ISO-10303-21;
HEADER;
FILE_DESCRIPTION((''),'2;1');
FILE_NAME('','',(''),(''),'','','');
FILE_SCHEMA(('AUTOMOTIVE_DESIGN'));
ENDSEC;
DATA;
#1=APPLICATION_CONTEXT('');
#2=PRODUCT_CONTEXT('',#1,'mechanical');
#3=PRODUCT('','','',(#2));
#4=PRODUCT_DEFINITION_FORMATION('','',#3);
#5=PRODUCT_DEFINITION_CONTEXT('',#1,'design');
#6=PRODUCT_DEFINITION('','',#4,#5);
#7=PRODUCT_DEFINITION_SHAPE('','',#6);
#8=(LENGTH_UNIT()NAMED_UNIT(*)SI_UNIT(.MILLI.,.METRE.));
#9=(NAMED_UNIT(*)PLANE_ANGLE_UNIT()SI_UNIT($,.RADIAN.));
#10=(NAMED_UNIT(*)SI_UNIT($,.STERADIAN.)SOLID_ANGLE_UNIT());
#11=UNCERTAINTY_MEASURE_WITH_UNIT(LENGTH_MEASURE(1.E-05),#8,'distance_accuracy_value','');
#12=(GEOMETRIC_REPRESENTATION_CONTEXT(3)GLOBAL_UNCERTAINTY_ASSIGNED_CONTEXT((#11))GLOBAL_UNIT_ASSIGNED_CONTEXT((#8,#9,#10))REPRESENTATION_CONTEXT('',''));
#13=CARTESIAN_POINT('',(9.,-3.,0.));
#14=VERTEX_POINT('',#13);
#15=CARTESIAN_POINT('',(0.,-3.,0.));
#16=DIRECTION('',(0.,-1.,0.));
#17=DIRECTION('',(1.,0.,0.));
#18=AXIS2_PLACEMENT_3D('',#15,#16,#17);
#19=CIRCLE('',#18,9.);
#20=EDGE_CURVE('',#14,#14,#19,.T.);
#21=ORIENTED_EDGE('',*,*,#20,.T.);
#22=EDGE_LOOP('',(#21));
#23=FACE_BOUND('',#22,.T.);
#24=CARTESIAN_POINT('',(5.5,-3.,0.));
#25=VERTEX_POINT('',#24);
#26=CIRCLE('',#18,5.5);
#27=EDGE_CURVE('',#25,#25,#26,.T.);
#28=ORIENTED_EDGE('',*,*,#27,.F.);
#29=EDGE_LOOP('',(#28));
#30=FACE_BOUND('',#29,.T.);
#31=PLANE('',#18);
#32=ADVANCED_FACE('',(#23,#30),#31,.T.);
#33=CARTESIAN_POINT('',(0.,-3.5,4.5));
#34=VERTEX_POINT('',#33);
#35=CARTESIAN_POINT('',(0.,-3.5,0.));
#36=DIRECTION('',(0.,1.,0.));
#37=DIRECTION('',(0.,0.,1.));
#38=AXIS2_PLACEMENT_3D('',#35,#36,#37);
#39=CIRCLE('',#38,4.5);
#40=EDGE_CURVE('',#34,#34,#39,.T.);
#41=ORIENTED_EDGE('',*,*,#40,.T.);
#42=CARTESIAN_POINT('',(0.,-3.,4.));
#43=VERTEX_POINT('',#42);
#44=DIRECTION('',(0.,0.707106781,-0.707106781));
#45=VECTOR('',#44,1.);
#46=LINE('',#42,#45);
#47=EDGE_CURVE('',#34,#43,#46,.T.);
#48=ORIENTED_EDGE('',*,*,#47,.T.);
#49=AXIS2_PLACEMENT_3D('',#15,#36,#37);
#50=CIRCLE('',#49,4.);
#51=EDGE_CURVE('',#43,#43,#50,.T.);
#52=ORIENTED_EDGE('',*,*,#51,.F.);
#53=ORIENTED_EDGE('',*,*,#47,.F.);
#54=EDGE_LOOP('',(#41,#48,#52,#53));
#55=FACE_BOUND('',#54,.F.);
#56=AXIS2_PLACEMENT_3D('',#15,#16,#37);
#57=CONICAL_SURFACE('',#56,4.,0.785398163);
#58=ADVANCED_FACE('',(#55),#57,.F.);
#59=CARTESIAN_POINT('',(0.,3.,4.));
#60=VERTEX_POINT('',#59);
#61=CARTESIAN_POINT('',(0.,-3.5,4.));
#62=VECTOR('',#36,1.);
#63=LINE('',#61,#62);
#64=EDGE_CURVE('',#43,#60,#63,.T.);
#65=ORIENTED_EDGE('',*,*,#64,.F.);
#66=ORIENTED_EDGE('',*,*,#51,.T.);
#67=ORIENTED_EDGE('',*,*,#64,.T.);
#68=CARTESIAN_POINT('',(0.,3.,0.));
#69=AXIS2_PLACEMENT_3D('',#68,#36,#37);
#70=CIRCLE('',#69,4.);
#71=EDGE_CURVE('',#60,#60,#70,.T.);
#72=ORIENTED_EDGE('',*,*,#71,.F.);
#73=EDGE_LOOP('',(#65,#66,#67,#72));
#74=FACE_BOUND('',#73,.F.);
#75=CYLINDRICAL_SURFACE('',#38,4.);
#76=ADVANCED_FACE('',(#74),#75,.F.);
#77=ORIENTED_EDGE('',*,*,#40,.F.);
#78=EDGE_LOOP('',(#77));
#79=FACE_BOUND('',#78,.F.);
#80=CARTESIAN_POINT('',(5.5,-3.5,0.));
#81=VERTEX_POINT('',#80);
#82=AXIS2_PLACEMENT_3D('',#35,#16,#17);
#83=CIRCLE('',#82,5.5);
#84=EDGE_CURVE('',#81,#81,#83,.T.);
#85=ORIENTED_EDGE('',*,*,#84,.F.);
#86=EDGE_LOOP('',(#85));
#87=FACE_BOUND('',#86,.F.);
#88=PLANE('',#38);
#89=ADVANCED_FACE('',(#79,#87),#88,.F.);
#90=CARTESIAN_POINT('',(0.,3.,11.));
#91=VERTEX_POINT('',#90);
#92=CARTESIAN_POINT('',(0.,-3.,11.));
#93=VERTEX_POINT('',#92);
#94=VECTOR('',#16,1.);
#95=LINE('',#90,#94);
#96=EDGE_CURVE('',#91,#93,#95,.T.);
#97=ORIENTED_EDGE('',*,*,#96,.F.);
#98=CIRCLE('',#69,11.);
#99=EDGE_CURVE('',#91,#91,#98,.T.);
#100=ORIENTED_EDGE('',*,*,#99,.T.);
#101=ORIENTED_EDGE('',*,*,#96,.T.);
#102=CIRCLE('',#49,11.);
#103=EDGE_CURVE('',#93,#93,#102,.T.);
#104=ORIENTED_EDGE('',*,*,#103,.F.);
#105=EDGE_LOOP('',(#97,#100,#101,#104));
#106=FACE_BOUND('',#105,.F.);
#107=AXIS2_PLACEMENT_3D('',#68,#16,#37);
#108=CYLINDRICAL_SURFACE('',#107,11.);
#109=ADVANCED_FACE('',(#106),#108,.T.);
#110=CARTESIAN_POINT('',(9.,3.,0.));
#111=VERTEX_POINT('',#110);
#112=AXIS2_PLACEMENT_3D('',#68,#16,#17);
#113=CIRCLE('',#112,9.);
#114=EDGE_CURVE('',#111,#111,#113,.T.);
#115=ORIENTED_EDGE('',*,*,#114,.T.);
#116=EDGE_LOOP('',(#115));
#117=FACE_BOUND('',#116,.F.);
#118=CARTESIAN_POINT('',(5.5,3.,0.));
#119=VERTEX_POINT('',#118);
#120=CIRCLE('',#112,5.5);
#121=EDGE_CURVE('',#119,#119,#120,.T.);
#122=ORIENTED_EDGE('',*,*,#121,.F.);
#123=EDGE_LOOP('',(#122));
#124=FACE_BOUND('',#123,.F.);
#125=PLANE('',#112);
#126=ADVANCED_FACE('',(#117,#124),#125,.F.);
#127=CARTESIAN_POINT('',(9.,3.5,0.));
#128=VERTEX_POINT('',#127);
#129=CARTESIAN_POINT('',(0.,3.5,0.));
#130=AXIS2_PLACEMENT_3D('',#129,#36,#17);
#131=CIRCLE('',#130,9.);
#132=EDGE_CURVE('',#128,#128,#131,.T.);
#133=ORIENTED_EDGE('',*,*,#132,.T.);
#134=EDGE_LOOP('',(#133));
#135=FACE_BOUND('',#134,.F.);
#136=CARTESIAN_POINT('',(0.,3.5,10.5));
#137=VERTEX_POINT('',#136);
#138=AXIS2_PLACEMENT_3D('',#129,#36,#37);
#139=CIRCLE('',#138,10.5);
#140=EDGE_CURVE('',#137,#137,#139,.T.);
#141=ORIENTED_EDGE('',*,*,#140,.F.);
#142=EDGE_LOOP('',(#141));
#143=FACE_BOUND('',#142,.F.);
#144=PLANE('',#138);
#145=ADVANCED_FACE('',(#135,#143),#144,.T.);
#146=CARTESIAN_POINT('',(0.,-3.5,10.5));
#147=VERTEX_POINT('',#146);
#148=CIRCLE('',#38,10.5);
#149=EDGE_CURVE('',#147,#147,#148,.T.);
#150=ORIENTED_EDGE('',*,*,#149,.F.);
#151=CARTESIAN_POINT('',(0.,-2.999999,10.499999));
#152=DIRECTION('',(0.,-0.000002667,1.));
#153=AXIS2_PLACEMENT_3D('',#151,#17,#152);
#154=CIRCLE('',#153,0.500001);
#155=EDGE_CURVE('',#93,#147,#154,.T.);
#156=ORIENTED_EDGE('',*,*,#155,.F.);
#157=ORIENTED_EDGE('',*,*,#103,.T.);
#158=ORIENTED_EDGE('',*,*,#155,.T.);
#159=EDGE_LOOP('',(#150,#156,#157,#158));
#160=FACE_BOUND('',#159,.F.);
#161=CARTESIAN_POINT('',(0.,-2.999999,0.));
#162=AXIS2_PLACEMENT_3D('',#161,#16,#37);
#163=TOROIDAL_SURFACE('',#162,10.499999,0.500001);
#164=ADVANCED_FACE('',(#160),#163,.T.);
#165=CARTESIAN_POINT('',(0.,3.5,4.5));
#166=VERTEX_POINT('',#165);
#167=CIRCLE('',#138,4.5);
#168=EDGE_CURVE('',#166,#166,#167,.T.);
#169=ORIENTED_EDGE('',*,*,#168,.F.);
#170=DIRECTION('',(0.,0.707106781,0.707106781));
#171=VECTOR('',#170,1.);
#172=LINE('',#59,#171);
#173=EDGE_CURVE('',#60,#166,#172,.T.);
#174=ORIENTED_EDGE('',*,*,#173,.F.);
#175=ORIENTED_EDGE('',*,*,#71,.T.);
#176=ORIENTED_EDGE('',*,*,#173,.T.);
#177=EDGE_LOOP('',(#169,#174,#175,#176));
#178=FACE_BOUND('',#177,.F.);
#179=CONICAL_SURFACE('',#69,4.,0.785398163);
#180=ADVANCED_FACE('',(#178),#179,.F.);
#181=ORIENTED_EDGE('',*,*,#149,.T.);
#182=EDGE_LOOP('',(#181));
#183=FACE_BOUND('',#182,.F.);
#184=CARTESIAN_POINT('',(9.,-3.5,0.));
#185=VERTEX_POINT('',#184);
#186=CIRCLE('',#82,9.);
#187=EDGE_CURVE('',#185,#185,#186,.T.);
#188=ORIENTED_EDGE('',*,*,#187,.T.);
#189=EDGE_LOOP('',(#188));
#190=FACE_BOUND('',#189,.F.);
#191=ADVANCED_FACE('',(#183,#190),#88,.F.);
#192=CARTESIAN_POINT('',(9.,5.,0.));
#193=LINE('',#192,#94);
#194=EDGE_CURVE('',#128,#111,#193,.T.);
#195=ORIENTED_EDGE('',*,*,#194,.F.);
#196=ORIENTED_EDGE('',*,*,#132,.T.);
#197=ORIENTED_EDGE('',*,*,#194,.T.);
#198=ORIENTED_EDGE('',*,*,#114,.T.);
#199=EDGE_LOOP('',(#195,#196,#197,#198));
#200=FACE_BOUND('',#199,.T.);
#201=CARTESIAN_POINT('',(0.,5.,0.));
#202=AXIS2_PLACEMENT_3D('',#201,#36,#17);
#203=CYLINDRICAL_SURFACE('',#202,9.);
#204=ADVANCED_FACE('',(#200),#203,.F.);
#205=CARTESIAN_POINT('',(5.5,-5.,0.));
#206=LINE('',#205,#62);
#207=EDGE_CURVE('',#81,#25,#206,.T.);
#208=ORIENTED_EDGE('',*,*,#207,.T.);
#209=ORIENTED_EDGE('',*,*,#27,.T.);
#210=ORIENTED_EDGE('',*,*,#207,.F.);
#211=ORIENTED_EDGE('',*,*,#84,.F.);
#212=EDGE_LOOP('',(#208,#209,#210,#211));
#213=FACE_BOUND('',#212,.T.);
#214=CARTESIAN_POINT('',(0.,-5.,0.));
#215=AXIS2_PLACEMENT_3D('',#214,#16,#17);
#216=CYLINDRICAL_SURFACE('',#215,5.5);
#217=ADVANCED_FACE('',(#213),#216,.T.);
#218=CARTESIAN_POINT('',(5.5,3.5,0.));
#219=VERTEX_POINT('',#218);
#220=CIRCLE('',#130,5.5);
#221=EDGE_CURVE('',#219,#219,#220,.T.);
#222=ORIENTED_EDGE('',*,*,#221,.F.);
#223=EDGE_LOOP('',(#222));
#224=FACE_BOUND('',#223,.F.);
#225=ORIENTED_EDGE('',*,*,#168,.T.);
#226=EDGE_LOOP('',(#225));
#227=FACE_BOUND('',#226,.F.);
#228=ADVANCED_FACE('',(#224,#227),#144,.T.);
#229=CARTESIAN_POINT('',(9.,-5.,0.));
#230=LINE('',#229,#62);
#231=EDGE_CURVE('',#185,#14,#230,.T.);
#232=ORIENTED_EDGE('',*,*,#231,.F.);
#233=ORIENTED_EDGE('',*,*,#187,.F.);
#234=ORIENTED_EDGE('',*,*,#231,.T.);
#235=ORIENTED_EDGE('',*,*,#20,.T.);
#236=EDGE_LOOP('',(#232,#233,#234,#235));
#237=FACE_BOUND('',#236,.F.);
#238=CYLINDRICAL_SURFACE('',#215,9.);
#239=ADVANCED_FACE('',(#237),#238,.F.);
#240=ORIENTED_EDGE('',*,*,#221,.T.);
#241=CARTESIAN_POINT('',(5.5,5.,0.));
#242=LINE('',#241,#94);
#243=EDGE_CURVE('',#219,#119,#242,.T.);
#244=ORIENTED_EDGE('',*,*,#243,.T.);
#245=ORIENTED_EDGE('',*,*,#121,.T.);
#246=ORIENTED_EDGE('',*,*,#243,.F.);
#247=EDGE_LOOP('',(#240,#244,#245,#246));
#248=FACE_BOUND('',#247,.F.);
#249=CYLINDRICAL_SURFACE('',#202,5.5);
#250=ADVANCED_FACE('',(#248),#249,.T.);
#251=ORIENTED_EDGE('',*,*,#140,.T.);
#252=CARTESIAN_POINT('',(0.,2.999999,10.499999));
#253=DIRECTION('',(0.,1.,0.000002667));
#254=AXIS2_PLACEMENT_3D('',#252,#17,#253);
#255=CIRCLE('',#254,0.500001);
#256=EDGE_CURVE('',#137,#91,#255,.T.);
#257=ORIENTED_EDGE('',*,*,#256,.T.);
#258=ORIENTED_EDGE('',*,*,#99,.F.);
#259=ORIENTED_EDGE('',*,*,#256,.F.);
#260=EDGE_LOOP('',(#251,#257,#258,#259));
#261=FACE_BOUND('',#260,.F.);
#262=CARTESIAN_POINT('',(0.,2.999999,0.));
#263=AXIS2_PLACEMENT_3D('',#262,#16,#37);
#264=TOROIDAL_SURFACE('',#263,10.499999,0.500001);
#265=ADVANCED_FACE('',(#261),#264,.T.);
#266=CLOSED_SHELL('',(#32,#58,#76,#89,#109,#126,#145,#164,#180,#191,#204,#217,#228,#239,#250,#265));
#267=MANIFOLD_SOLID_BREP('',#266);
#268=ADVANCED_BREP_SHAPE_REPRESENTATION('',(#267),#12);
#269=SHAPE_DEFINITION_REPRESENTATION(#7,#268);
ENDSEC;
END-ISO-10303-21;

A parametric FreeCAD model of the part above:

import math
import FreeCAD as App
import Part
import Sketcher
from FreeCAD import Vector


def edges_at(feature, points):
    """Names of the edges that pass closest to the given points."""
    edges = feature.Shape.Edges
    near = lambda p: min(range(len(edges)), key=lambda i: edges[i].distToShape(Part.Vertex(*p))[0])
    return sorted({f"Edge{near(p) + 1}" for p in points})

doc = App.newDocument("Part")
body = doc.addObject("PartDesign::Body", "Body")

# Sketch on YZ plane
sketch1 = body.newObject("Sketcher::SketchObject", "Sketch")
sketch1.AttachmentSupport = (doc.getObject("YZ_Plane"), [""])
sketch1.MapMode = "FlatFace"
sketch1.addGeometry([
    Part.LineSegment(Vector(-3.5, 10.5, 0), Vector(-3.5, 4, 0)),  # 0
    Part.LineSegment(Vector(-3.5, 4, 0), Vector(3.5, 4, 0)),  # 1
    Part.LineSegment(Vector(3.5, 4, 0), Vector(3.5, 10.5, 0)),  # 2
    Part.ArcOfCircle(Part.Circle(Vector(2.999999, 10.499999, 0), Vector(0, 0, 1), 0.500001), math.radians(0.000153), math.radians(89.999847)),  # 3
    Part.LineSegment(Vector(3, 11, 0), Vector(-3, 11, 0)),  # 4
    Part.ArcOfCircle(Part.Circle(Vector(-2.999999, 10.499999, 0), Vector(0, 0, 1), 0.500001), math.radians(90.000153), math.radians(179.999847)),  # 5
], False)
sketch1.addConstraint([
    Sketcher.Constraint("Coincident", 0, 2, 1, 1),
    Sketcher.Constraint("Coincident", 1, 2, 2, 1),
    Sketcher.Constraint("Coincident", 2, 2, 3, 1),
    Sketcher.Constraint("Coincident", 3, 2, 4, 1),
    Sketcher.Constraint("Coincident", 4, 2, 5, 1),
    Sketcher.Constraint("Coincident", 5, 2, 0, 1),
    Sketcher.Constraint("Vertical", 0),
    Sketcher.Constraint("Horizontal", 1),
    Sketcher.Constraint("Vertical", 2),
    Sketcher.Constraint("Horizontal", 4),
    Sketcher.Constraint("Equal", 3, 5),
    Sketcher.Constraint("Symmetric", 2, 2, 5, 2, -2),
    Sketcher.Constraint("Horizontal", 5, 3, 2, 2),
    Sketcher.Constraint("Vertical", 5, 3, 4, 2),
    Sketcher.Constraint("Radius", 3, 0.500001),
    Sketcher.Constraint("DistanceX", 1, 1, 1, 2, 7.0),
    Sketcher.Constraint("DistanceX", 4, 2, 4, 1, 6.0),
    Sketcher.Constraint("DistanceY", 0, 2, 0, 1, 6.5),
    Sketcher.Constraint("DistanceY", -1, 1, 0, 2, 4.0),
])
revolution = body.newObject("PartDesign::Revolution", "Revolution")
revolution.Profile = sketch1
revolution.ReferenceAxis = (sketch1, ["H_Axis"])
revolution.Angle = 360
doc.recompute()

chamfer = body.newObject("PartDesign::Chamfer", "Chamfer")
chamfer.Base = (revolution, edges_at(revolution, [(0, 3.5, -4), (0, -3.5, -4)]))
chamfer.Size = 0.5

# Sketch on XZ plane
sketch2 = body.newObject("Sketcher::SketchObject", "Sketch001")
sketch2.AttachmentSupport = (doc.getObject("XZ_Plane"), [""])
sketch2.MapMode = "FlatFace"
sketch2.AttachmentOffset = App.Placement(Vector(0, 0, -5), App.Rotation())
sketch2.addGeometry([
    Part.Circle(Vector(0, 0, 0), Vector(0, 0, 1), 9),
    Part.Circle(Vector(0, 0, 0), Vector(0, 0, 1), 5.5),
], False)
sketch2.addConstraint([
    Sketcher.Constraint("Coincident", 0, 3, -1, 1),
    Sketcher.Constraint("Coincident", 1, 3, -1, 1),
    Sketcher.Constraint("Diameter", 0, 18.0),
    Sketcher.Constraint("Diameter", 1, 11.0),
])
pocket1 = body.newObject("PartDesign::Pocket", "Pocket")
pocket1.Profile = sketch2
pocket1.Length = 2
pocket1.Reversed = True

# Sketch on XZ plane
sketch3 = body.newObject("Sketcher::SketchObject", "Sketch002")
sketch3.AttachmentSupport = (doc.getObject("XZ_Plane"), [""])
sketch3.MapMode = "FlatFace"
sketch3.AttachmentOffset = App.Placement(Vector(0, 0, 5), App.Rotation())
sketch3.addGeometry([
    Part.Circle(Vector(0, 0, 0), Vector(0, 0, 1), 9),
    Part.Circle(Vector(0, 0, 0), Vector(0, 0, 1), 5.5),
], False)
sketch3.addConstraint([
    Sketcher.Constraint("Coincident", 0, 3, -1, 1),
    Sketcher.Constraint("Coincident", 1, 3, -1, 1),
    Sketcher.Constraint("Diameter", 0, 18.0),
    Sketcher.Constraint("Diameter", 1, 11.0),
])
pocket2 = body.newObject("PartDesign::Pocket", "Pocket001")
pocket2.Profile = sketch3
pocket2.Length = 2

doc.recompute()
